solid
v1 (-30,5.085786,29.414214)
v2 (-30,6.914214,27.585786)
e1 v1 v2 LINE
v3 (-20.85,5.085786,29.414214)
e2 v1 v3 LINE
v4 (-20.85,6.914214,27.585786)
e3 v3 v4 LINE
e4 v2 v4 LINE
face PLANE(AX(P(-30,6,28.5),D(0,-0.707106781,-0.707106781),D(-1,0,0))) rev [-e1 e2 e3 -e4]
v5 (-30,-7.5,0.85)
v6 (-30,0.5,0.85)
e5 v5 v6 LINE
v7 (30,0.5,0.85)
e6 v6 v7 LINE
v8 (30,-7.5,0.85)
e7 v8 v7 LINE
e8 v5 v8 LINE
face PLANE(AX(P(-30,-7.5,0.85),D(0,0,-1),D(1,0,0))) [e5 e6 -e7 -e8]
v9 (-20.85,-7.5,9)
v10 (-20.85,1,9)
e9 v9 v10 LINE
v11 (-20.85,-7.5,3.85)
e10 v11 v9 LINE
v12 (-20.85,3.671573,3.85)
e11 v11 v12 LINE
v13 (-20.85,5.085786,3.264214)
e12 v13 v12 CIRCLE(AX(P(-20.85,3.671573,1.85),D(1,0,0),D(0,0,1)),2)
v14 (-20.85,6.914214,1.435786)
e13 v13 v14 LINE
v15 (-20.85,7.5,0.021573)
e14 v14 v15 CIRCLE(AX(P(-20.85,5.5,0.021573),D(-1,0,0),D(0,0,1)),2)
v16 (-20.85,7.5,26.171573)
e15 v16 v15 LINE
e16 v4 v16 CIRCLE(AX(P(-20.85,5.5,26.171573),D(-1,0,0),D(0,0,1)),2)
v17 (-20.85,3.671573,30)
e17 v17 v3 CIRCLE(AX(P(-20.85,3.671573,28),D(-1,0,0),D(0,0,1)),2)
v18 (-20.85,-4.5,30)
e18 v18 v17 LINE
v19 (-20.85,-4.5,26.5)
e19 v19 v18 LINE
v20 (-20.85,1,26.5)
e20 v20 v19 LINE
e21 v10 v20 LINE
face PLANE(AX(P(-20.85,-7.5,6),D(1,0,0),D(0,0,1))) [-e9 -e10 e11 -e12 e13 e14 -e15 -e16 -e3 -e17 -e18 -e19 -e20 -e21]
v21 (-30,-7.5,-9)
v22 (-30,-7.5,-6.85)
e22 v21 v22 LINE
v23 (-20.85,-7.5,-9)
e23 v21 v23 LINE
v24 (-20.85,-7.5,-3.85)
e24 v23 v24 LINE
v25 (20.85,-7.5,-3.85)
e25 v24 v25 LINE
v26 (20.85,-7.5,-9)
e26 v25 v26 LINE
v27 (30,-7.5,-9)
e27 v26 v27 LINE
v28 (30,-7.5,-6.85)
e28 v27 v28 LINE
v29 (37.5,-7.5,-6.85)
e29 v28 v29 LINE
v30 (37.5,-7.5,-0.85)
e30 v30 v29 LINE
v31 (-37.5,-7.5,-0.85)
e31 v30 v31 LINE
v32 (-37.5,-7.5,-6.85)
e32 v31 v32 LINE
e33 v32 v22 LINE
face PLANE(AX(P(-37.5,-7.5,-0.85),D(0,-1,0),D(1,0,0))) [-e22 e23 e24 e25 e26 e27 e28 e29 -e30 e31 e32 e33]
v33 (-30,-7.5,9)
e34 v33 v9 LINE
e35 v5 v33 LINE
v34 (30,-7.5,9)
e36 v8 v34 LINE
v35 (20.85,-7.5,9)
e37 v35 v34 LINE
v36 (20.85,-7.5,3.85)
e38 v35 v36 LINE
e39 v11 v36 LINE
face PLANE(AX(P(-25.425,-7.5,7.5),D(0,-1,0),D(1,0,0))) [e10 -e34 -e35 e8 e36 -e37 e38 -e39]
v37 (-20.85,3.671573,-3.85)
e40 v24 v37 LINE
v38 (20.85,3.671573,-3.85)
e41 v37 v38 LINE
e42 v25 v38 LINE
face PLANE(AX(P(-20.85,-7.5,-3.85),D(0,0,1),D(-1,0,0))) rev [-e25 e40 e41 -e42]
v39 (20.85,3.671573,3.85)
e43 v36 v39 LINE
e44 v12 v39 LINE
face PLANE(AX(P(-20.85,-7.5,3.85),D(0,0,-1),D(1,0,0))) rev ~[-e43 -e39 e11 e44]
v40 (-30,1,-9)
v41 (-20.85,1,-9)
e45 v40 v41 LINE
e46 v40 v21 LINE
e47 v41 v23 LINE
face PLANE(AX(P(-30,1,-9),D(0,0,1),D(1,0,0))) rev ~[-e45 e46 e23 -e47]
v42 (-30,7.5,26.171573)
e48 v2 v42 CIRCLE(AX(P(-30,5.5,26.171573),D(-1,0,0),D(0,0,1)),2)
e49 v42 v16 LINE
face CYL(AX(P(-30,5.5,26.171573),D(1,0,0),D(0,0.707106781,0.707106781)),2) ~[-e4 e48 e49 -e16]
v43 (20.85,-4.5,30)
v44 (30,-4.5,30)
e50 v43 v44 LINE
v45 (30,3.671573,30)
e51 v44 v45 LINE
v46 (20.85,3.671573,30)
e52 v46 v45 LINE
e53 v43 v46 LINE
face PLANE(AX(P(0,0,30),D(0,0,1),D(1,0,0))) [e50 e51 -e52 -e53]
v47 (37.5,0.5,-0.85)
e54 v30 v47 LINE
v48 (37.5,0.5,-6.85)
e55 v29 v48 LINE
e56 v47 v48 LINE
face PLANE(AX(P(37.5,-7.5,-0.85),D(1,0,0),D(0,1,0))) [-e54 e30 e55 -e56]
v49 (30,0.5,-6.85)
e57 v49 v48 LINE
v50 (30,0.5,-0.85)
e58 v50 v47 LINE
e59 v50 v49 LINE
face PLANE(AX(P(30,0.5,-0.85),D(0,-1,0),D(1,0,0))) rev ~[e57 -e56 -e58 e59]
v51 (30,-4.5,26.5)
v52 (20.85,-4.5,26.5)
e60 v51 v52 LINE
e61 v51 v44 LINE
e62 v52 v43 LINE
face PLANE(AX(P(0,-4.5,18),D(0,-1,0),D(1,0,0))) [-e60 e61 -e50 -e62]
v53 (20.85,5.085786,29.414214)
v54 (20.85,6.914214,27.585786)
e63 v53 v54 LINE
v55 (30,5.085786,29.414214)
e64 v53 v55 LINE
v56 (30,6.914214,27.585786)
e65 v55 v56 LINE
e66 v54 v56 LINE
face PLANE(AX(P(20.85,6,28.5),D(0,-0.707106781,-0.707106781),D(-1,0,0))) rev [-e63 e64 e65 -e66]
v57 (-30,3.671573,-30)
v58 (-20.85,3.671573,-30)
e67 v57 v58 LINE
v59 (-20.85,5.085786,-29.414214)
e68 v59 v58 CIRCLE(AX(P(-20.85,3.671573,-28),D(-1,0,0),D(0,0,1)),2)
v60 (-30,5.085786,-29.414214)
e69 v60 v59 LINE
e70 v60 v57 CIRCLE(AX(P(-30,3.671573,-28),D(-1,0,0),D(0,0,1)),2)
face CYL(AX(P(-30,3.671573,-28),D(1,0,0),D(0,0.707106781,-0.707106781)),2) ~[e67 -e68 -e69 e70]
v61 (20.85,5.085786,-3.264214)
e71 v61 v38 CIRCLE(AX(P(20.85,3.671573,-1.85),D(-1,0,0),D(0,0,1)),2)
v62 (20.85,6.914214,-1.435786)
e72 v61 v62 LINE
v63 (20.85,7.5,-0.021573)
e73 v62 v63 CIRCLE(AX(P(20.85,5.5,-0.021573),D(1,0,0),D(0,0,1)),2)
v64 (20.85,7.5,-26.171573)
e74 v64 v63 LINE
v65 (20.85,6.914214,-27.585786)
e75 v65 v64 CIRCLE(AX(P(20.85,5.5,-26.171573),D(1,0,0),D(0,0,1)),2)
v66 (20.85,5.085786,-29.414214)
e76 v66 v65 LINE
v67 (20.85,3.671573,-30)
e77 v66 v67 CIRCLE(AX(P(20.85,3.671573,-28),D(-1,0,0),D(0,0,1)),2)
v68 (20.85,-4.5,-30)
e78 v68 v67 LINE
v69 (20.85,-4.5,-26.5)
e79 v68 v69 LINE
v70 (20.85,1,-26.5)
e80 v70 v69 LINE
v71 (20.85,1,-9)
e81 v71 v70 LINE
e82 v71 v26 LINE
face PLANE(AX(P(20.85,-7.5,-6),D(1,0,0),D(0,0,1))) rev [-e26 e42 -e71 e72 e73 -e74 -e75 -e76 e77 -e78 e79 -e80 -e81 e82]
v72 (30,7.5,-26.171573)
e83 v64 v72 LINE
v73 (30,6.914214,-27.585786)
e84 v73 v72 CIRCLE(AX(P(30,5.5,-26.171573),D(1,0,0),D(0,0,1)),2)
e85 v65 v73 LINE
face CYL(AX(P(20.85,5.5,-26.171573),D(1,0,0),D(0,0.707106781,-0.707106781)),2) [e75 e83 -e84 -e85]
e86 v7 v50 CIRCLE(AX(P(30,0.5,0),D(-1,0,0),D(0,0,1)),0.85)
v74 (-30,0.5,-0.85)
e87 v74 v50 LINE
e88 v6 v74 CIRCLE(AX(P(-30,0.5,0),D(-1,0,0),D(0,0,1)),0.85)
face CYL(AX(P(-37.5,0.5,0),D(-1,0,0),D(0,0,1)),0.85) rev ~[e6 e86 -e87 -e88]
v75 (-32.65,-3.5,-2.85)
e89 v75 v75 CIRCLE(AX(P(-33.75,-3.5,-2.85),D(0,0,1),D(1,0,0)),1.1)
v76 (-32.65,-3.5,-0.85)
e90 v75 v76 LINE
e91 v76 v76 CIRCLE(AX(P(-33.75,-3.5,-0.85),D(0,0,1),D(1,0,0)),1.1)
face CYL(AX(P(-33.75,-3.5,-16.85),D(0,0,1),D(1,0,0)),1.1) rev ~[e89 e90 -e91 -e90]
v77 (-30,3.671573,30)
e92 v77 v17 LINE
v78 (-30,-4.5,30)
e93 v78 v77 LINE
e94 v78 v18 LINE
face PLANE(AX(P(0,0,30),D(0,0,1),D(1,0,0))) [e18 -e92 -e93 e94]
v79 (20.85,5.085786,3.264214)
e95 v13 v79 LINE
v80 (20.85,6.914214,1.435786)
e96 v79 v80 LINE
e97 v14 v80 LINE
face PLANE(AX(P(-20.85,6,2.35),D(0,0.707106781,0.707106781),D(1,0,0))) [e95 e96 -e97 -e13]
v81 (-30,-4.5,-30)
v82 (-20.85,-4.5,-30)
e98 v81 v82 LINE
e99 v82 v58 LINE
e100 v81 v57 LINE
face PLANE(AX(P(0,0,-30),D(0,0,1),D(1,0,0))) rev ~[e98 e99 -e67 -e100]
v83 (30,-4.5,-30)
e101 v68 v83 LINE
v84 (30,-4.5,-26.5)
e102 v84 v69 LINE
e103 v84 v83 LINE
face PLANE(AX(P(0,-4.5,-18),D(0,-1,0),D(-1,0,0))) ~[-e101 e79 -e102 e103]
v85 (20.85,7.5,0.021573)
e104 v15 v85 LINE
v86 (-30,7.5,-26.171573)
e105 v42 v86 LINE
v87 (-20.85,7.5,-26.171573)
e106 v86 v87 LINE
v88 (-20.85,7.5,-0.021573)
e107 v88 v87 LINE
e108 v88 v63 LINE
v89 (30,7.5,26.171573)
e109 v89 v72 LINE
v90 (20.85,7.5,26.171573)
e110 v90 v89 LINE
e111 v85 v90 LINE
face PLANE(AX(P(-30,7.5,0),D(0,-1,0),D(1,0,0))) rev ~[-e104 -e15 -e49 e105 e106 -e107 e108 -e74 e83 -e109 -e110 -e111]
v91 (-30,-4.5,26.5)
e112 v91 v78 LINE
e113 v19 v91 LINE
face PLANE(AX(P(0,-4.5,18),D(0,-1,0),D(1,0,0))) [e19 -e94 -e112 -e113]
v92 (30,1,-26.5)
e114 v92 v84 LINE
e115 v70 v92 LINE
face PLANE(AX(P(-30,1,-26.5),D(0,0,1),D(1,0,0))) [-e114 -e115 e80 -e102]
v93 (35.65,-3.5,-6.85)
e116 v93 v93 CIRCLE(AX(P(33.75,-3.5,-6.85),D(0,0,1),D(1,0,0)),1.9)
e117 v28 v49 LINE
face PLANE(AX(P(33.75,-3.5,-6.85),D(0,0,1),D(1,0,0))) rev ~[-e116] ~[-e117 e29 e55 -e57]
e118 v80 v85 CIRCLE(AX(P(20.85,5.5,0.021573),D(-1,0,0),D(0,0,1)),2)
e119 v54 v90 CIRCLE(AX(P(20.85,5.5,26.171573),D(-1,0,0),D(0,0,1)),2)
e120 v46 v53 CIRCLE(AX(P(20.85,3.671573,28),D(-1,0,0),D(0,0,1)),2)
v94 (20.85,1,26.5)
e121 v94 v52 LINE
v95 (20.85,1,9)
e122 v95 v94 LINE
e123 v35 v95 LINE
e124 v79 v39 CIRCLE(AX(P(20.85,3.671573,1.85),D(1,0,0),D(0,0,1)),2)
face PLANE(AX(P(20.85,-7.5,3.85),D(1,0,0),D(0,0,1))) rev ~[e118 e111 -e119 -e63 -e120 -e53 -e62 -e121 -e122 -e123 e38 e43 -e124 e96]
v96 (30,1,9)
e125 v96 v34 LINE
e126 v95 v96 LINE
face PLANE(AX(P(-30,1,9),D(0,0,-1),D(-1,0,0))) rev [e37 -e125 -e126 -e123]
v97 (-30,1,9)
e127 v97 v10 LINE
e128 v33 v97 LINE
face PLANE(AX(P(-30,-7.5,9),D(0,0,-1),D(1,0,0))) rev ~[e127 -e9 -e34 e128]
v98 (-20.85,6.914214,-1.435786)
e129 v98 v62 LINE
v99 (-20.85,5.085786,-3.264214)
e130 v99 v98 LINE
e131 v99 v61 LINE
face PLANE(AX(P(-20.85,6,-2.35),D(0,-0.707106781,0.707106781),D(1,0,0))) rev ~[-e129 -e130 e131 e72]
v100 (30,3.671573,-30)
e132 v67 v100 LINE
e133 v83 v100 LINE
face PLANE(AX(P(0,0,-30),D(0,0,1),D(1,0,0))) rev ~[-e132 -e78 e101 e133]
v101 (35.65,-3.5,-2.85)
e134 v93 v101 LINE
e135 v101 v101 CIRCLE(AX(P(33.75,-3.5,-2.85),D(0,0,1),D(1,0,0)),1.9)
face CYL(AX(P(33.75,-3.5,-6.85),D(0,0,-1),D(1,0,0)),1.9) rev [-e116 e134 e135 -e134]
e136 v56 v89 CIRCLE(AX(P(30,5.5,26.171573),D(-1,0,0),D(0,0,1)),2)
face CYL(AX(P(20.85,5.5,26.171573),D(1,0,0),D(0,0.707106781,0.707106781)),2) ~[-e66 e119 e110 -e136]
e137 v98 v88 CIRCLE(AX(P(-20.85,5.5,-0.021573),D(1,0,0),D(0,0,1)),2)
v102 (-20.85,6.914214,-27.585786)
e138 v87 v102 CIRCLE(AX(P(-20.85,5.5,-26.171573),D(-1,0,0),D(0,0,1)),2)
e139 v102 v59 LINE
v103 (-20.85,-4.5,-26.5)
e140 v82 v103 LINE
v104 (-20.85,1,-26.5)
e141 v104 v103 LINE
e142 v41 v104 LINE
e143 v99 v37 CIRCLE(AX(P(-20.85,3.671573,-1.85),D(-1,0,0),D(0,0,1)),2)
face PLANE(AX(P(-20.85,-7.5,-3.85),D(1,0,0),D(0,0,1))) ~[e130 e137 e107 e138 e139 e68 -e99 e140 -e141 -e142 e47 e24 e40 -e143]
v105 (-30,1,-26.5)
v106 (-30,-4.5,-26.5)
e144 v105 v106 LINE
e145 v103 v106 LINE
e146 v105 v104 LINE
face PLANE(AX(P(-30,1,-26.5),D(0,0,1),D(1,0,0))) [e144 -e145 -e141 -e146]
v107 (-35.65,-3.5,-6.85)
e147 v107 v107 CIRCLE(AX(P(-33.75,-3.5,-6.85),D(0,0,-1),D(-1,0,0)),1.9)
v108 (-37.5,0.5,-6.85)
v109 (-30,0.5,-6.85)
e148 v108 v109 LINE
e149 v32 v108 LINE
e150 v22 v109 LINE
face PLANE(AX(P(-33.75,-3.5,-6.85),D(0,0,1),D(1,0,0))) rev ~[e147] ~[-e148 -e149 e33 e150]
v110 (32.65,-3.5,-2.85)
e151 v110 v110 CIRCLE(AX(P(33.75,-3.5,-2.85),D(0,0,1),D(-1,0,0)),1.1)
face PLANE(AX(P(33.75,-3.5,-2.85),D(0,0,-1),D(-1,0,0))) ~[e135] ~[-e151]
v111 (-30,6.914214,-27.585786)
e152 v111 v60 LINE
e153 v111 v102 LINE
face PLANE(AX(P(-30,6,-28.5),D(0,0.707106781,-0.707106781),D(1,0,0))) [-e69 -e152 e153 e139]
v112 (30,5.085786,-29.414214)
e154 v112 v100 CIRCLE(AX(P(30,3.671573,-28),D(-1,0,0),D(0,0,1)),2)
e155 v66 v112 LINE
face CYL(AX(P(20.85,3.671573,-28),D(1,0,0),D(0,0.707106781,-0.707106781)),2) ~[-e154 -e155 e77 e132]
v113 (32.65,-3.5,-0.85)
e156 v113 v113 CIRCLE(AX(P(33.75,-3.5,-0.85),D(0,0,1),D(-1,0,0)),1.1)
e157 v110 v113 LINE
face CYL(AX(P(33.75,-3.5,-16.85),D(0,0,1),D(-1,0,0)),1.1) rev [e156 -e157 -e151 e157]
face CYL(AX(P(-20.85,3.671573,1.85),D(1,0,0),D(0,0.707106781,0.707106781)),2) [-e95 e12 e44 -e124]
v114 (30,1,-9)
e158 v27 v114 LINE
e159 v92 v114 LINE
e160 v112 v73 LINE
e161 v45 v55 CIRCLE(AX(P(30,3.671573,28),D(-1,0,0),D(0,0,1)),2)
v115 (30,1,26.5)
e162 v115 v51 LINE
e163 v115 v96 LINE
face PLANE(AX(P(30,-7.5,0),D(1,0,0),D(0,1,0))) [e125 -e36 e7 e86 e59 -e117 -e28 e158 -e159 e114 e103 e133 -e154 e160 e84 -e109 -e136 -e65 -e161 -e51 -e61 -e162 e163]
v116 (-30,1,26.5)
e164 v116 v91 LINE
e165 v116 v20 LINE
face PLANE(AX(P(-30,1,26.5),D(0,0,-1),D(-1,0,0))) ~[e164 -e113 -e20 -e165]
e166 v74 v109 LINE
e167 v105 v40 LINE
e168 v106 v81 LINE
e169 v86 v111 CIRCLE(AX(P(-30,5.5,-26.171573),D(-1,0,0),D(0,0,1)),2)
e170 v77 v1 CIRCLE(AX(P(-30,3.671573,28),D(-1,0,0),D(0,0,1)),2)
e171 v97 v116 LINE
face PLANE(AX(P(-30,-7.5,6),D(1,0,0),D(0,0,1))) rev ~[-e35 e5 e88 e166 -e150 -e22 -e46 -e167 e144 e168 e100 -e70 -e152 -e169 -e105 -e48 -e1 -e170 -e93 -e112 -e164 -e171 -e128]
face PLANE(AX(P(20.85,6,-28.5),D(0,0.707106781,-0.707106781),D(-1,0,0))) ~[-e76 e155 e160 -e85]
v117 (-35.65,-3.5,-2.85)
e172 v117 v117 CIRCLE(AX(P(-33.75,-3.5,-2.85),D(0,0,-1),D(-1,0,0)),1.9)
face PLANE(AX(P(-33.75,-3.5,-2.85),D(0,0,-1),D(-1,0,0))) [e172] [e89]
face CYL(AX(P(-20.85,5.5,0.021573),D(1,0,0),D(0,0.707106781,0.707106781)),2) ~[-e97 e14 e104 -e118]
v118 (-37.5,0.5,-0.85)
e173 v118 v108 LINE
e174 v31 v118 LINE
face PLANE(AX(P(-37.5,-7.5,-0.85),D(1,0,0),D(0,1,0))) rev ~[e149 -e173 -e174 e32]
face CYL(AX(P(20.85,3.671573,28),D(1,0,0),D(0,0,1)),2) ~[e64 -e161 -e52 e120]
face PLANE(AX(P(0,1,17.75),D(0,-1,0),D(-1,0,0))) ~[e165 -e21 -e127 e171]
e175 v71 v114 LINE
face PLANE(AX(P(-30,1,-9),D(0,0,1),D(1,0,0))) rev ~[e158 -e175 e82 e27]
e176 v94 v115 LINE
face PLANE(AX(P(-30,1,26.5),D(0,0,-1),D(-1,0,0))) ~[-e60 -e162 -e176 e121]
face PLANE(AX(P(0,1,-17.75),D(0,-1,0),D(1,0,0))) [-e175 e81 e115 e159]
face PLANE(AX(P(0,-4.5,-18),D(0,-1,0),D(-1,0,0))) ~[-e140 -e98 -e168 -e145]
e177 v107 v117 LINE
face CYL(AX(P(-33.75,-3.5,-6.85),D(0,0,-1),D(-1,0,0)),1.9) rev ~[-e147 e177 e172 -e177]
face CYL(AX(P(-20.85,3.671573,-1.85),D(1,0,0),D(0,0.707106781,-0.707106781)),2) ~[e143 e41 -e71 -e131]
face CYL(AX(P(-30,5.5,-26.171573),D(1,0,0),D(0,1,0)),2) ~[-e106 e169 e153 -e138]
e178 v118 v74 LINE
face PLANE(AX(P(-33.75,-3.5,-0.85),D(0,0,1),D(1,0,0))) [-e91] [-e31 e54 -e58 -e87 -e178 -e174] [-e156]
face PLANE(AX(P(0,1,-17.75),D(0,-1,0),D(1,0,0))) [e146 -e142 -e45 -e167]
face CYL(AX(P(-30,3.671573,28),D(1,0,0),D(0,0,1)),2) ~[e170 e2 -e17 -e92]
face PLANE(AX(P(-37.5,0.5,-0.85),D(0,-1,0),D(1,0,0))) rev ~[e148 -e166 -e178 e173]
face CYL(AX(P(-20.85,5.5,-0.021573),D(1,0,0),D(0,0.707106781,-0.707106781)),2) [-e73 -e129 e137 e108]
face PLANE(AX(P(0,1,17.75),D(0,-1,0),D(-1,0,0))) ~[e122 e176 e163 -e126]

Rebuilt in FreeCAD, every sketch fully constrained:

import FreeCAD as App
import Part
import Sketcher
from FreeCAD import Vector
Q = App.Units.Quantity


def edges_at(feature, points):
    """Names of the edges that pass closest to the given points."""
    edges = feature.Shape.Edges
    near = lambda p: min(range(len(edges)), key=lambda i: edges[i].distToShape(Part.Vertex(*p))[0])
    return sorted({f"Edge{near(p) + 1}" for p in points})

doc = App.newDocument("Part")
body = doc.addObject("PartDesign::Body", "Body")

# Sketch on XY plane
sketch1 = body.newObject("Sketcher::SketchObject", "Sketch")
sketch1.AttachmentSupport = (doc.getObject("XY_Plane"), [""])
sketch1.MapMode = "FlatFace"
sketch1.addGeometry([
    Part.LineSegment(Vector(-30, 8, 0), Vector(-30, -8, 0)),
    Part.LineSegment(Vector(-30, -8, 0), Vector(30, -8, 0)),
    Part.LineSegment(Vector(30, -8, 0), Vector(30, 8, 0)),
    Part.LineSegment(Vector(30, 8, 0), Vector(-30, 8, 0)),
], False)
sketch1.addConstraint([
    Sketcher.Constraint("Coincident", 0, 2, 1, 1),
    Sketcher.Constraint("Coincident", 1, 2, 2, 1),
    Sketcher.Constraint("Coincident", 2, 2, 3, 1),
    Sketcher.Constraint("Coincident", 3, 2, 0, 1),
    Sketcher.Constraint("Vertical", 0),
    Sketcher.Constraint("Horizontal", 1),
    Sketcher.Constraint("Vertical", 2),
    Sketcher.Constraint("Horizontal", 3),
    Sketcher.Constraint("Symmetric", 0, 2, 2, 2, -1, 1),
    Sketcher.Constraint("DistanceX", 1, 1, 1, 2, Q("60 mm")),
    Sketcher.Constraint("DistanceY", 0, 2, 0, 1, Q("15 mm")),
])
pad1 = body.newObject("PartDesign::Pad", "Pad")
pad1.Profile = sketch1
pad1.Length = 60
pad1.Midplane = True

# Sketch on XZ plane
sketch2 = body.newObject("Sketcher::SketchObject", "Sketch001")
sketch2.AttachmentSupport = (doc.getObject("XZ_Plane"), [""])
sketch2.MapMode = "FlatFace"
sketch2.AttachmentOffset = App.Placement(Vector(0, 0, 7.5), App.Rotation())
sketch2.addGeometry([
    Part.LineSegment(Vector(-30, 0.8, 0), Vector(-30, -0.8, 0)),
    Part.LineSegment(Vector(-30, -0.8, 0), Vector(30, -0.8, 0)),
    Part.LineSegment(Vector(30, -0.8, 0), Vector(30, 0.8, 0)),
    Part.LineSegment(Vector(30, 0.8, 0), Vector(-30, 0.8, 0)),
], False)
sketch2.addConstraint([
    Sketcher.Constraint("Coincident", 0, 2, 1, 1),
    Sketcher.Constraint("Coincident", 1, 2, 2, 1),
    Sketcher.Constraint("Coincident", 2, 2, 3, 1),
    Sketcher.Constraint("Coincident", 3, 2, 0, 1),
    Sketcher.Constraint("Vertical", 0),
    Sketcher.Constraint("Horizontal", 1),
    Sketcher.Constraint("Vertical", 2),
    Sketcher.Constraint("Horizontal", 3),
    Sketcher.Constraint("Symmetric", 0, 2, 2, 2, -1, 1),
    Sketcher.Constraint("DistanceX", 1, 1, 1, 2, Q("60 mm")),
    Sketcher.Constraint("DistanceY", 0, 2, 0, 1, Q("1.7 mm")),
])
pocket1 = body.newObject("PartDesign::Pocket", "Pocket")
pocket1.Profile = sketch2
pocket1.Length = 8

# Sketch on XZ plane
sketch3 = body.newObject("Sketcher::SketchObject", "Sketch002")
sketch3.AttachmentSupport = (doc.getObject("XZ_Plane"), [""])
sketch3.MapMode = "FlatFace"
sketch3.AttachmentOffset = App.Placement(Vector(0, 0, 7.5), App.Rotation())
sketch3.addGeometry([
    Part.LineSegment(Vector(-30, -11.2, 0), Vector(-30, -13, 0)),  # 0
    Part.LineSegment(Vector(-30, -13, 0), Vector(30, -13, 0)),  # 1
    Part.LineSegment(Vector(30, -13, 0), Vector(30, -11.2, 0)),  # 2
    Part.LineSegment(Vector(30, -11.2, 0), Vector(-30, -11.2, 0)),  # 3
    Part.LineSegment(Vector(-30, -22.5, 0), Vector(-30, -24.3, 0)),  # 4
    Part.LineSegment(Vector(-30, -24.3, 0), Vector(30, -24.3, 0)),  # 5
    Part.LineSegment(Vector(30, -24.3, 0), Vector(30, -22.5, 0)),  # 6
    Part.LineSegment(Vector(30, -22.5, 0), Vector(-30, -22.5, 0)),  # 7
], False)
sketch3.addConstraint([
    Sketcher.Constraint("Coincident", 0, 2, 1, 1),
    Sketcher.Constraint("Coincident", 1, 2, 2, 1),
    Sketcher.Constraint("Coincident", 2, 2, 3, 1),
    Sketcher.Constraint("Coincident", 3, 2, 0, 1),
    Sketcher.Constraint("Coincident", 4, 2, 5, 1),
    Sketcher.Constraint("Coincident", 5, 2, 6, 1),
    Sketcher.Constraint("Coincident", 6, 2, 7, 1),
    Sketcher.Constraint("Coincident", 7, 2, 4, 1),
    Sketcher.Constraint("Vertical", 0),
    Sketcher.Constraint("Horizontal", 1),
    Sketcher.Constraint("Vertical", 2),
    Sketcher.Constraint("Horizontal", 3),
    Sketcher.Constraint("Vertical", 4),
    Sketcher.Constraint("Horizontal", 5),
    Sketcher.Constraint("Vertical", 6),
    Sketcher.Constraint("Horizontal", 7),
    Sketcher.Constraint("Vertical", 3, 2, 4, 2),
    Sketcher.Constraint("Vertical", 2, 2, 5, 2),
    Sketcher.Constraint("Equal", 2, 4),
    Sketcher.Constraint("DistanceX", 1, 1, 1, 2, Q("60 mm")),
    Sketcher.Constraint("DistanceY", 0, 2, 0, 1, Q("1.8 mm")),
    Sketcher.Constraint("DistanceX", 0, 2, -1, 1, Q("30 mm")),
    Sketcher.Constraint("DistanceY", 0, 2, -1, 1, Q("13 mm")),
    Sketcher.Constraint("DistanceY", 4, 2, -1, 1, Q("24.3 mm")),
])
pocket2 = body.newObject("PartDesign::Pocket", "Pocket001")
pocket2.Profile = sketch3
pocket2.Length = 8.5

# Sketch on XZ plane
sketch4 = body.newObject("Sketcher::SketchObject", "Sketch003")
sketch4.AttachmentSupport = (doc.getObject("XZ_Plane"), [""])
sketch4.MapMode = "FlatFace"
sketch4.AttachmentOffset = App.Placement(Vector(0, 0, 7.5), App.Rotation())
sketch4.addGeometry([
    Part.LineSegment(Vector(-30, 30, 0), Vector(-30, 6, 0)),
    Part.LineSegment(Vector(-30, 6, 0), Vector(30, 6, 0)),
    Part.LineSegment(Vector(30, 6, 0), Vector(30, 30, 0)),
    Part.LineSegment(Vector(30, 30, 0), Vector(-30, 30, 0)),
], False)
sketch4.addConstraint([
    Sketcher.Constraint("Coincident", 0, 2, 1, 1),
    Sketcher.Constraint("Coincident", 1, 2, 2, 1),
    Sketcher.Constraint("Coincident", 2, 2, 3, 1),
    Sketcher.Constraint("Coincident", 3, 2, 0, 1),
    Sketcher.Constraint("Vertical", 0),
    Sketcher.Constraint("Horizontal", 1),
    Sketcher.Constraint("Vertical", 2),
    Sketcher.Constraint("Horizontal", 3),
    Sketcher.Constraint("DistanceX", 1, 1, 1, 2, Q("60 mm")),
    Sketcher.Constraint("DistanceY", 0, 2, 0, 1, Q("24 mm")),
    Sketcher.Constraint("DistanceX", 0, 2, -1, 1, Q("30 mm")),
    Sketcher.Constraint("DistanceY", -1, 1, 0, 2, Q("6 mm")),
])
pocket3 = body.newObject("PartDesign::Pocket", "Pocket002")
pocket3.Profile = sketch4
pocket3.Length = 3

# Sketch on XZ plane
sketch5 = body.newObject("Sketcher::SketchObject", "Sketch004")
sketch5.AttachmentSupport = (doc.getObject("XZ_Plane"), [""])
sketch5.MapMode = "FlatFace"
sketch5.AttachmentOffset = App.Placement(Vector(0, 0, 7.5), App.Rotation())
sketch5.addGeometry([
    Part.LineSegment(Vector(-21, 30, 0), Vector(-21, 6, 0)),
    Part.LineSegment(Vector(-21, 6, 0), Vector(21, 6, 0)),
    Part.LineSegment(Vector(21, 6, 0), Vector(21, 30, 0)),
    Part.LineSegment(Vector(21, 30, 0), Vector(-21, 30, 0)),
], False)
sketch5.addConstraint([
    Sketcher.Constraint("Coincident", 0, 2, 1, 1),
    Sketcher.Constraint("Coincident", 1, 2, 2, 1),
    Sketcher.Constraint("Coincident", 2, 2, 3, 1),
    Sketcher.Constraint("Coincident", 3, 2, 0, 1),
    Sketcher.Constraint("Vertical", 0),
    Sketcher.Constraint("Horizontal", 1),
    Sketcher.Constraint("Vertical", 2),
    Sketcher.Constraint("Horizontal", 3),
    Sketcher.Constraint("DistanceY", 0, 2, 0, 1, Q("24 mm")),
    Sketcher.Constraint("DistanceX", 1, 1, 1, 2, Q("41.7 mm")),
    Sketcher.Constraint("DistanceY", -1, 1, 0, 2, Q("6 mm")),
    Sketcher.Constraint("DistanceX", 0, 2, -1, 1, Q("20.85 mm")),
])
pocket4 = body.newObject("PartDesign::Pocket", "Pocket003")
pocket4.Profile = sketch5
pocket4.Length = 27

# Sketch on XZ plane
sketch6 = body.newObject("Sketcher::SketchObject", "Sketch005")
sketch6.AttachmentSupport = (doc.getObject("XZ_Plane"), [""])
sketch6.MapMode = "FlatFace"
sketch6.AttachmentOffset = App.Placement(Vector(0, 0, 7.5), App.Rotation())
sketch6.addGeometry([
    Part.LineSegment(Vector(-30, -13, 0), Vector(-30, -22, 0)),
    Part.LineSegment(Vector(-30, -22, 0), Vector(30, -22, 0)),
    Part.LineSegment(Vector(30, -22, 0), Vector(30, -13, 0)),
    Part.LineSegment(Vector(30, -13, 0), Vector(-30, -13, 0)),
], False)
sketch6.addConstraint([
    Sketcher.Constraint("Coincident", 0, 2, 1, 1),
    Sketcher.Constraint("Coincident", 1, 2, 2, 1),
    Sketcher.Constraint("Coincident", 2, 2, 3, 1),
    Sketcher.Constraint("Coincident", 3, 2, 0, 1),
    Sketcher.Constraint("Vertical", 0),
    Sketcher.Constraint("Horizontal", 1),
    Sketcher.Constraint("Vertical", 2),
    Sketcher.Constraint("Horizontal", 3),
    Sketcher.Constraint("DistanceX", 1, 1, 1, 2, Q("60 mm")),
    Sketcher.Constraint("DistanceY", 0, 2, 0, 1, Q("9.5 mm")),
    Sketcher.Constraint("DistanceX", 0, 2, -1, 1, Q("30 mm")),
    Sketcher.Constraint("DistanceY", 2, 2, -1, 1, Q("13 mm")),
])
pocket5 = body.newObject("PartDesign::Pocket", "Pocket004")
pocket5.Profile = sketch6
pocket5.Length = 8.5

# Sketch on XZ plane
sketch7 = body.newObject("Sketcher::SketchObject", "Sketch006")
sketch7.AttachmentSupport = (doc.getObject("XZ_Plane"), [""])
sketch7.MapMode = "FlatFace"
sketch7.AttachmentOffset = App.Placement(Vector(0, 0, -1), App.Rotation())
sketch7.addGeometry([
    Part.LineSegment(Vector(-30, -9, 0), Vector(-30, -26, 0)),
    Part.LineSegment(Vector(-30, -26, 0), Vector(30, -26, 0)),
    Part.LineSegment(Vector(30, -26, 0), Vector(30, -9, 0)),
    Part.LineSegment(Vector(30, -9, 0), Vector(-30, -9, 0)),
], False)
sketch7.addConstraint([
    Sketcher.Constraint("Coincident", 0, 2, 1, 1),
    Sketcher.Constraint("Coincident", 1, 2, 2, 1),
    Sketcher.Constraint("Coincident", 2, 2, 3, 1),
    Sketcher.Constraint("Coincident", 3, 2, 0, 1),
    Sketcher.Constraint("Vertical", 0),
    Sketcher.Constraint("Horizontal", 1),
    Sketcher.Constraint("Vertical", 2),
    Sketcher.Constraint("Horizontal", 3),
    Sketcher.Constraint("DistanceX", 1, 1, 1, 2, Q("60 mm")),
    Sketcher.Constraint("DistanceY", 0, 2, 0, 1, Q("17.5 mm")),
    Sketcher.Constraint("DistanceX", 0, 2, -1, 1, Q("30 mm")),
    Sketcher.Constraint("DistanceY", 2, 2, -1, 1, Q("9 mm")),
])
pocket6 = body.newObject("PartDesign::Pocket", "Pocket005")
pocket6.Profile = sketch7
pocket6.Length = 25
pocket6.Reversed = True
doc.recompute()

mirrored = body.newObject("PartDesign::Mirrored", "Mirrored")
mirrored.Originals = [pocket2, pocket3, pocket4, pocket5, pocket6]
mirrored.MirrorPlane = (doc.getObject("XY_Plane"), [""])
body.Tip = mirrored

# Sketch on XZ plane
sketch8 = body.newObject("Sketcher::SketchObject", "Sketch007")
sketch8.AttachmentSupport = (doc.getObject("XZ_Plane"), [""])
sketch8.MapMode = "FlatFace"
sketch8.AttachmentOffset = App.Placement(Vector(0, 0, 7.5), App.Rotation())
sketch8.addGeometry([
    Part.LineSegment(Vector(-30, 9, 0), Vector(-30, 6, 0)),  # 0
    Part.LineSegment(Vector(-30, 6, 0), Vector(-20.9, 6, 0)),  # 1
    Part.LineSegment(Vector(-20.9, 6, 0), Vector(-20.9, 9, 0)),  # 2
    Part.LineSegment(Vector(-20.9, 9, 0), Vector(-30, 9, 0)),  # 3
    Part.LineSegment(Vector(-30, -6, 0), Vector(-30, -9, 0)),  # 4
    Part.LineSegment(Vector(-30, -9, 0), Vector(-20.9, -9, 0)),  # 5
    Part.LineSegment(Vector(-20.9, -9, 0), Vector(-20.9, -6, 0)),  # 6
    Part.LineSegment(Vector(-20.9, -6, 0), Vector(-30, -6, 0)),  # 7
    Part.LineSegment(Vector(20.9, -6, 0), Vector(20.9, -9, 0)),  # 8
    Part.LineSegment(Vector(20.9, -9, 0), Vector(30, -9, 0)),  # 9
    Part.LineSegment(Vector(30, -9, 0), Vector(30, -6, 0)),  # 10
    Part.LineSegment(Vector(30, -6, 0), Vector(20.9, -6, 0)),  # 11
    Part.LineSegment(Vector(20.9, 9, 0), Vector(20.9, 6, 0)),  # 12
    Part.LineSegment(Vector(20.9, 6, 0), Vector(30, 6, 0)),  # 13
    Part.LineSegment(Vector(30, 6, 0), Vector(30, 9, 0)),  # 14
    Part.LineSegment(Vector(30, 9, 0), Vector(20.9, 9, 0)),  # 15
], False)
sketch8.addConstraint([
    Sketcher.Constraint("Coincident", 0, 2, 1, 1),
    Sketcher.Constraint("Coincident", 1, 2, 2, 1),
    Sketcher.Constraint("Coincident", 2, 2, 3, 1),
    Sketcher.Constraint("Coincident", 3, 2, 0, 1),
    Sketcher.Constraint("Coincident", 4, 2, 5, 1),
    Sketcher.Constraint("Coincident", 5, 2, 6, 1),
    Sketcher.Constraint("Coincident", 6, 2, 7, 1),
    Sketcher.Constraint("Coincident", 7, 2, 4, 1),
    Sketcher.Constraint("Coincident", 8, 2, 9, 1),
    Sketcher.Constraint("Coincident", 9, 2, 10, 1),
    Sketcher.Constraint("Coincident", 10, 2, 11, 1),
    Sketcher.Constraint("Coincident", 11, 2, 8, 1),
    Sketcher.Constraint("Coincident", 12, 2, 13, 1),
    Sketcher.Constraint("Coincident", 13, 2, 14, 1),
    Sketcher.Constraint("Coincident", 14, 2, 15, 1),
    Sketcher.Constraint("Coincident", 15, 2, 12, 1),
    Sketcher.Constraint("Vertical", 0),
    Sketcher.Constraint("Horizontal", 1),
    Sketcher.Constraint("Vertical", 2),
    Sketcher.Constraint("Horizontal", 3),
    Sketcher.Constraint("Vertical", 4),
    Sketcher.Constraint("Horizontal", 5),
    Sketcher.Constraint("Vertical", 6),
    Sketcher.Constraint("Horizontal", 7),
    Sketcher.Constraint("Vertical", 8),
    Sketcher.Constraint("Horizontal", 9),
    Sketcher.Constraint("Vertical", 10),
    Sketcher.Constraint("Horizontal", 11),
    Sketcher.Constraint("Vertical", 12),
    Sketcher.Constraint("Horizontal", 13),
    Sketcher.Constraint("Vertical", 14),
    Sketcher.Constraint("Horizontal", 15),
    Sketcher.Constraint("Symmetric", 2, 2, 8, 2, -1, 1),
    Sketcher.Constraint("Symmetric", 0, 2, 10, 2, -1, 1),
    Sketcher.Constraint("Symmetric", 6, 2, 12, 2, -1, 1),
    Sketcher.Constraint("Symmetric", 4, 2, 14, 2, -1, 1),
    Sketcher.Constraint("Symmetric", 5, 2, 8, 2, -2),
    Sketcher.Constraint("Symmetric", 7, 2, 10, 2, -2),
    Sketcher.Constraint("DistanceY", 0, 2, 0, 1, Q("3 mm")),
    Sketcher.Constraint("DistanceX", 0, 2, -1, 1, Q("30 mm")),
    Sketcher.Constraint("DistanceY", -1, 1, 0, 2, Q("6 mm")),
    Sketcher.Constraint("DistanceX", 1, 1, 1, 2, Q("9.15 mm")),
])
pad2 = body.newObject("PartDesign::Pad", "Pad001")
pad2.Profile = sketch8
pad2.Length = 5
pad2.Reversed = True

# Sketch on XZ plane
sketch9 = body.newObject("Sketcher::SketchObject", "Sketch008")
sketch9.AttachmentSupport = (doc.getObject("XZ_Plane"), [""])
sketch9.MapMode = "FlatFace"
sketch9.AttachmentOffset = App.Placement(Vector(0, 0, 7.5), App.Rotation())
sketch9.addGeometry([
    Part.LineSegment(Vector(-21, 9, 0), Vector(-21, 4, 0)),
    Part.LineSegment(Vector(-21, 4, 0), Vector(21, 4, 0)),
    Part.LineSegment(Vector(21, 4, 0), Vector(21, 9, 0)),
    Part.LineSegment(Vector(21, 9, 0), Vector(-21, 9, 0)),
], False)
sketch9.addConstraint([
    Sketcher.Constraint("Coincident", 0, 2, 1, 1),
    Sketcher.Constraint("Coincident", 1, 2, 2, 1),
    Sketcher.Constraint("Coincident", 2, 2, 3, 1),
    Sketcher.Constraint("Coincident", 3, 2, 0, 1),
    Sketcher.Constraint("Vertical", 0),
    Sketcher.Constraint("Horizontal", 1),
    Sketcher.Constraint("Vertical", 2),
    Sketcher.Constraint("Horizontal", 3),
    Sketcher.Constraint("DistanceX", 1, 1, 1, 2, Q("41.7 mm")),
    Sketcher.Constraint("DistanceY", -1, 1, 2, 2, Q("9 mm")),
    Sketcher.Constraint("DistanceY", 0, 2, 0, 1, Q("5.15 mm")),
    Sketcher.Constraint("DistanceX", 0, 2, -1, 1, Q("20.85 mm")),
])
pocket7 = body.newObject("PartDesign::Pocket", "Pocket006")
pocket7.Profile = sketch9
pocket7.Length = 23
doc.recompute()

mirrored2 = body.newObject("PartDesign::Mirrored", "Mirrored001")
mirrored2.Originals = [pocket7]
mirrored2.MirrorPlane = (doc.getObject("XY_Plane"), [""])
body.Tip = mirrored2
doc.recompute()

chamfer = body.newObject("PartDesign::Chamfer", "Chamfer")
chamfer.Base = (mirrored2, edges_at(mirrored2, [
    (25.425, 7.5, 30),
    (-25.425, 7.5, -30),
    (0, 7.5, 3.85),
    (0, 7.5, -3.85),
    (25.425, 7.5, -30),
    (-25.425, 7.5, 30),
]))
chamfer.Size = 3
doc.recompute()

fillet = body.newObject("PartDesign::Fillet", "Fillet")
fillet.Base = (chamfer, edges_at(chamfer, [
    (0, 4.5, -3.85),
    (-25.425, 7.5, 27),
    (25.425, 7.5, 27),
    (25.425, 7.5, -27),
    (-25.425, 7.5, -27),
    (0, 7.5, 0.85),
    (0, 7.5, -0.85),
    (0, 4.5, 3.85),
    (-25.425, 4.5, -30),
    (25.425, 4.5, -30),
    (25.425, 4.5, 30),
    (-25.425, 4.5, 30),
]))
fillet.Radius = 2

# Sketch on XY plane
sketch10 = body.newObject("Sketcher::SketchObject", "Sketch009")
sketch10.AttachmentSupport = (doc.getObject("XY_Plane"), [""])
sketch10.MapMode = "FlatFace"
sketch10.AttachmentOffset = App.Placement(Vector(0, 0, -0.85), App.Rotation())
sketch10.addGeometry([
    Part.LineSegment(Vector(-38, 0, 0), Vector(-38, -8, 0)),  # 0
    Part.LineSegment(Vector(-38, -8, 0), Vector(-30, -8, 0)),  # 1
    Part.LineSegment(Vector(-30, -8, 0), Vector(-30, 0, 0)),  # 2
    Part.LineSegment(Vector(-30, 0, 0), Vector(-38, 0, 0)),  # 3
    Part.LineSegment(Vector(30, 0, 0), Vector(30, -8, 0)),  # 4
    Part.LineSegment(Vector(30, -8, 0), Vector(38, -8, 0)),  # 5
    Part.LineSegment(Vector(38, -8, 0), Vector(38, 0, 0)),  # 6
    Part.LineSegment(Vector(38, 0, 0), Vector(30, 0, 0)),  # 7
], False)
sketch10.addConstraint([
    Sketcher.Constraint("Coincident", 0, 2, 1, 1),
    Sketcher.Constraint("Coincident", 1, 2, 2, 1),
    Sketcher.Constraint("Coincident", 2, 2, 3, 1),
    Sketcher.Constraint("Coincident", 3, 2, 0, 1),
    Sketcher.Constraint("Coincident", 4, 2, 5, 1),
    Sketcher.Constraint("Coincident", 5, 2, 6, 1),
    Sketcher.Constraint("Coincident", 6, 2, 7, 1),
    Sketcher.Constraint("Coincident", 7, 2, 4, 1),
    Sketcher.Constraint("Vertical", 0),
    Sketcher.Constraint("Horizontal", 1),
    Sketcher.Constraint("Vertical", 2),
    Sketcher.Constraint("Horizontal", 3),
    Sketcher.Constraint("Vertical", 4),
    Sketcher.Constraint("Horizontal", 5),
    Sketcher.Constraint("Vertical", 6),
    Sketcher.Constraint("Horizontal", 7),
    Sketcher.Constraint("Symmetric", 1, 2, 4, 2, -2),
    Sketcher.Constraint("Symmetric", 3, 2, 6, 2, -2),
    Sketcher.Constraint("DistanceY", 0, 2, 0, 1, Q("8 mm")),
    Sketcher.Constraint("DistanceX", 1, 1, 1, 2, Q("7.5 mm")),
    Sketcher.Constraint("DistanceX", 1, 2, -1, 1, Q("30 mm")),
    Sketcher.Constraint("DistanceY", 0, 2, -1, 1, Q("7.5 mm")),
])
pad3 = body.newObject("PartDesign::Pad", "Pad002")
pad3.Profile = sketch10
pad3.Length = 6
pad3.Reversed = True

# Sketch on XY plane
sketch11 = body.newObject("Sketcher::SketchObject", "Sketch010")
sketch11.AttachmentSupport = (doc.getObject("XY_Plane"), [""])
sketch11.MapMode = "FlatFace"
sketch11.AttachmentOffset = App.Placement(Vector(0, 0, -6.85), App.Rotation())
sketch11.addGeometry(Part.Circle(Vector(-33.8, -3.5, 0), Vector(0, 0, 1), 1.9), False)
sketch11.addConstraint([
    Sketcher.Constraint("Diameter", 0, Q("3.8 mm")),
    Sketcher.Constraint("DistanceY", 0, 3, -1, 1, Q("3.5 mm")),
    Sketcher.Constraint("DistanceX", 0, 3, -1, 1, Q("33.75 mm")),
])
pocket8 = body.newObject("PartDesign::Pocket", "Pocket007")
pocket8.Profile = sketch11
pocket8.Length = 4
pocket8.Reversed = True

# Sketch on XY plane
sketch12 = body.newObject("Sketcher::SketchObject", "Sketch011")
sketch12.AttachmentSupport = (doc.getObject("XY_Plane"), [""])
sketch12.MapMode = "FlatFace"
sketch12.AttachmentOffset = App.Placement(Vector(0, 0, -6.85), App.Rotation())
sketch12.addGeometry(Part.Circle(Vector(-33.8, -3.5, 0), Vector(0, 0, 1), 1.1), False)
sketch12.addConstraint([
    Sketcher.Constraint("Diameter", 0, Q("2.2 mm")),
    Sketcher.Constraint("DistanceY", 0, 3, -1, 1, Q("3.5 mm")),
    Sketcher.Constraint("DistanceX", 0, 3, -1, 1, Q("33.75 mm")),
])
doc.recompute()
hole = body.newObject("PartDesign::Hole", "Hole")
hole.Profile = sketch12
hole.ThreadType = "None"
hole.Diameter = 2.2
hole.DepthType = "Dimension"
hole.Depth = 10
hole.DrillPoint = "Flat"
hole.Reversed = True
doc.recompute()

mirrored3 = body.newObject("PartDesign::Mirrored", "Mirrored002")
mirrored3.Originals = [pocket8, hole]
mirrored3.MirrorPlane = (doc.getObject("YZ_Plane"), [""])
body.Tip = mirrored3

# Sketch on YZ plane
sketch13 = body.newObject("Sketcher::SketchObject", "Sketch012")
sketch13.AttachmentSupport = (doc.getObject("YZ_Plane"), [""])
sketch13.MapMode = "FlatFace"
sketch13.AttachmentOffset = App.Placement(Vector(0, 0, -37.5), App.Rotation())
sketch13.addGeometry(Part.Circle(Vector(0.5, 0, 0), Vector(0, 0, 1), 0.8), False)
sketch13.addConstraint([
    Sketcher.Constraint("PointOnObject", 0, 3, -1),
    Sketcher.Constraint("Diameter", 0, Q("1.7 mm")),
    Sketcher.Constraint("DistanceX", -1, 1, 0, 3, Q("0.5 mm")),
])
pocket9 = body.newObject("PartDesign::Pocket", "Pocket008")
pocket9.Profile = sketch13
pocket9.Length = 81
pocket9.Reversed = True

doc.recompute()
